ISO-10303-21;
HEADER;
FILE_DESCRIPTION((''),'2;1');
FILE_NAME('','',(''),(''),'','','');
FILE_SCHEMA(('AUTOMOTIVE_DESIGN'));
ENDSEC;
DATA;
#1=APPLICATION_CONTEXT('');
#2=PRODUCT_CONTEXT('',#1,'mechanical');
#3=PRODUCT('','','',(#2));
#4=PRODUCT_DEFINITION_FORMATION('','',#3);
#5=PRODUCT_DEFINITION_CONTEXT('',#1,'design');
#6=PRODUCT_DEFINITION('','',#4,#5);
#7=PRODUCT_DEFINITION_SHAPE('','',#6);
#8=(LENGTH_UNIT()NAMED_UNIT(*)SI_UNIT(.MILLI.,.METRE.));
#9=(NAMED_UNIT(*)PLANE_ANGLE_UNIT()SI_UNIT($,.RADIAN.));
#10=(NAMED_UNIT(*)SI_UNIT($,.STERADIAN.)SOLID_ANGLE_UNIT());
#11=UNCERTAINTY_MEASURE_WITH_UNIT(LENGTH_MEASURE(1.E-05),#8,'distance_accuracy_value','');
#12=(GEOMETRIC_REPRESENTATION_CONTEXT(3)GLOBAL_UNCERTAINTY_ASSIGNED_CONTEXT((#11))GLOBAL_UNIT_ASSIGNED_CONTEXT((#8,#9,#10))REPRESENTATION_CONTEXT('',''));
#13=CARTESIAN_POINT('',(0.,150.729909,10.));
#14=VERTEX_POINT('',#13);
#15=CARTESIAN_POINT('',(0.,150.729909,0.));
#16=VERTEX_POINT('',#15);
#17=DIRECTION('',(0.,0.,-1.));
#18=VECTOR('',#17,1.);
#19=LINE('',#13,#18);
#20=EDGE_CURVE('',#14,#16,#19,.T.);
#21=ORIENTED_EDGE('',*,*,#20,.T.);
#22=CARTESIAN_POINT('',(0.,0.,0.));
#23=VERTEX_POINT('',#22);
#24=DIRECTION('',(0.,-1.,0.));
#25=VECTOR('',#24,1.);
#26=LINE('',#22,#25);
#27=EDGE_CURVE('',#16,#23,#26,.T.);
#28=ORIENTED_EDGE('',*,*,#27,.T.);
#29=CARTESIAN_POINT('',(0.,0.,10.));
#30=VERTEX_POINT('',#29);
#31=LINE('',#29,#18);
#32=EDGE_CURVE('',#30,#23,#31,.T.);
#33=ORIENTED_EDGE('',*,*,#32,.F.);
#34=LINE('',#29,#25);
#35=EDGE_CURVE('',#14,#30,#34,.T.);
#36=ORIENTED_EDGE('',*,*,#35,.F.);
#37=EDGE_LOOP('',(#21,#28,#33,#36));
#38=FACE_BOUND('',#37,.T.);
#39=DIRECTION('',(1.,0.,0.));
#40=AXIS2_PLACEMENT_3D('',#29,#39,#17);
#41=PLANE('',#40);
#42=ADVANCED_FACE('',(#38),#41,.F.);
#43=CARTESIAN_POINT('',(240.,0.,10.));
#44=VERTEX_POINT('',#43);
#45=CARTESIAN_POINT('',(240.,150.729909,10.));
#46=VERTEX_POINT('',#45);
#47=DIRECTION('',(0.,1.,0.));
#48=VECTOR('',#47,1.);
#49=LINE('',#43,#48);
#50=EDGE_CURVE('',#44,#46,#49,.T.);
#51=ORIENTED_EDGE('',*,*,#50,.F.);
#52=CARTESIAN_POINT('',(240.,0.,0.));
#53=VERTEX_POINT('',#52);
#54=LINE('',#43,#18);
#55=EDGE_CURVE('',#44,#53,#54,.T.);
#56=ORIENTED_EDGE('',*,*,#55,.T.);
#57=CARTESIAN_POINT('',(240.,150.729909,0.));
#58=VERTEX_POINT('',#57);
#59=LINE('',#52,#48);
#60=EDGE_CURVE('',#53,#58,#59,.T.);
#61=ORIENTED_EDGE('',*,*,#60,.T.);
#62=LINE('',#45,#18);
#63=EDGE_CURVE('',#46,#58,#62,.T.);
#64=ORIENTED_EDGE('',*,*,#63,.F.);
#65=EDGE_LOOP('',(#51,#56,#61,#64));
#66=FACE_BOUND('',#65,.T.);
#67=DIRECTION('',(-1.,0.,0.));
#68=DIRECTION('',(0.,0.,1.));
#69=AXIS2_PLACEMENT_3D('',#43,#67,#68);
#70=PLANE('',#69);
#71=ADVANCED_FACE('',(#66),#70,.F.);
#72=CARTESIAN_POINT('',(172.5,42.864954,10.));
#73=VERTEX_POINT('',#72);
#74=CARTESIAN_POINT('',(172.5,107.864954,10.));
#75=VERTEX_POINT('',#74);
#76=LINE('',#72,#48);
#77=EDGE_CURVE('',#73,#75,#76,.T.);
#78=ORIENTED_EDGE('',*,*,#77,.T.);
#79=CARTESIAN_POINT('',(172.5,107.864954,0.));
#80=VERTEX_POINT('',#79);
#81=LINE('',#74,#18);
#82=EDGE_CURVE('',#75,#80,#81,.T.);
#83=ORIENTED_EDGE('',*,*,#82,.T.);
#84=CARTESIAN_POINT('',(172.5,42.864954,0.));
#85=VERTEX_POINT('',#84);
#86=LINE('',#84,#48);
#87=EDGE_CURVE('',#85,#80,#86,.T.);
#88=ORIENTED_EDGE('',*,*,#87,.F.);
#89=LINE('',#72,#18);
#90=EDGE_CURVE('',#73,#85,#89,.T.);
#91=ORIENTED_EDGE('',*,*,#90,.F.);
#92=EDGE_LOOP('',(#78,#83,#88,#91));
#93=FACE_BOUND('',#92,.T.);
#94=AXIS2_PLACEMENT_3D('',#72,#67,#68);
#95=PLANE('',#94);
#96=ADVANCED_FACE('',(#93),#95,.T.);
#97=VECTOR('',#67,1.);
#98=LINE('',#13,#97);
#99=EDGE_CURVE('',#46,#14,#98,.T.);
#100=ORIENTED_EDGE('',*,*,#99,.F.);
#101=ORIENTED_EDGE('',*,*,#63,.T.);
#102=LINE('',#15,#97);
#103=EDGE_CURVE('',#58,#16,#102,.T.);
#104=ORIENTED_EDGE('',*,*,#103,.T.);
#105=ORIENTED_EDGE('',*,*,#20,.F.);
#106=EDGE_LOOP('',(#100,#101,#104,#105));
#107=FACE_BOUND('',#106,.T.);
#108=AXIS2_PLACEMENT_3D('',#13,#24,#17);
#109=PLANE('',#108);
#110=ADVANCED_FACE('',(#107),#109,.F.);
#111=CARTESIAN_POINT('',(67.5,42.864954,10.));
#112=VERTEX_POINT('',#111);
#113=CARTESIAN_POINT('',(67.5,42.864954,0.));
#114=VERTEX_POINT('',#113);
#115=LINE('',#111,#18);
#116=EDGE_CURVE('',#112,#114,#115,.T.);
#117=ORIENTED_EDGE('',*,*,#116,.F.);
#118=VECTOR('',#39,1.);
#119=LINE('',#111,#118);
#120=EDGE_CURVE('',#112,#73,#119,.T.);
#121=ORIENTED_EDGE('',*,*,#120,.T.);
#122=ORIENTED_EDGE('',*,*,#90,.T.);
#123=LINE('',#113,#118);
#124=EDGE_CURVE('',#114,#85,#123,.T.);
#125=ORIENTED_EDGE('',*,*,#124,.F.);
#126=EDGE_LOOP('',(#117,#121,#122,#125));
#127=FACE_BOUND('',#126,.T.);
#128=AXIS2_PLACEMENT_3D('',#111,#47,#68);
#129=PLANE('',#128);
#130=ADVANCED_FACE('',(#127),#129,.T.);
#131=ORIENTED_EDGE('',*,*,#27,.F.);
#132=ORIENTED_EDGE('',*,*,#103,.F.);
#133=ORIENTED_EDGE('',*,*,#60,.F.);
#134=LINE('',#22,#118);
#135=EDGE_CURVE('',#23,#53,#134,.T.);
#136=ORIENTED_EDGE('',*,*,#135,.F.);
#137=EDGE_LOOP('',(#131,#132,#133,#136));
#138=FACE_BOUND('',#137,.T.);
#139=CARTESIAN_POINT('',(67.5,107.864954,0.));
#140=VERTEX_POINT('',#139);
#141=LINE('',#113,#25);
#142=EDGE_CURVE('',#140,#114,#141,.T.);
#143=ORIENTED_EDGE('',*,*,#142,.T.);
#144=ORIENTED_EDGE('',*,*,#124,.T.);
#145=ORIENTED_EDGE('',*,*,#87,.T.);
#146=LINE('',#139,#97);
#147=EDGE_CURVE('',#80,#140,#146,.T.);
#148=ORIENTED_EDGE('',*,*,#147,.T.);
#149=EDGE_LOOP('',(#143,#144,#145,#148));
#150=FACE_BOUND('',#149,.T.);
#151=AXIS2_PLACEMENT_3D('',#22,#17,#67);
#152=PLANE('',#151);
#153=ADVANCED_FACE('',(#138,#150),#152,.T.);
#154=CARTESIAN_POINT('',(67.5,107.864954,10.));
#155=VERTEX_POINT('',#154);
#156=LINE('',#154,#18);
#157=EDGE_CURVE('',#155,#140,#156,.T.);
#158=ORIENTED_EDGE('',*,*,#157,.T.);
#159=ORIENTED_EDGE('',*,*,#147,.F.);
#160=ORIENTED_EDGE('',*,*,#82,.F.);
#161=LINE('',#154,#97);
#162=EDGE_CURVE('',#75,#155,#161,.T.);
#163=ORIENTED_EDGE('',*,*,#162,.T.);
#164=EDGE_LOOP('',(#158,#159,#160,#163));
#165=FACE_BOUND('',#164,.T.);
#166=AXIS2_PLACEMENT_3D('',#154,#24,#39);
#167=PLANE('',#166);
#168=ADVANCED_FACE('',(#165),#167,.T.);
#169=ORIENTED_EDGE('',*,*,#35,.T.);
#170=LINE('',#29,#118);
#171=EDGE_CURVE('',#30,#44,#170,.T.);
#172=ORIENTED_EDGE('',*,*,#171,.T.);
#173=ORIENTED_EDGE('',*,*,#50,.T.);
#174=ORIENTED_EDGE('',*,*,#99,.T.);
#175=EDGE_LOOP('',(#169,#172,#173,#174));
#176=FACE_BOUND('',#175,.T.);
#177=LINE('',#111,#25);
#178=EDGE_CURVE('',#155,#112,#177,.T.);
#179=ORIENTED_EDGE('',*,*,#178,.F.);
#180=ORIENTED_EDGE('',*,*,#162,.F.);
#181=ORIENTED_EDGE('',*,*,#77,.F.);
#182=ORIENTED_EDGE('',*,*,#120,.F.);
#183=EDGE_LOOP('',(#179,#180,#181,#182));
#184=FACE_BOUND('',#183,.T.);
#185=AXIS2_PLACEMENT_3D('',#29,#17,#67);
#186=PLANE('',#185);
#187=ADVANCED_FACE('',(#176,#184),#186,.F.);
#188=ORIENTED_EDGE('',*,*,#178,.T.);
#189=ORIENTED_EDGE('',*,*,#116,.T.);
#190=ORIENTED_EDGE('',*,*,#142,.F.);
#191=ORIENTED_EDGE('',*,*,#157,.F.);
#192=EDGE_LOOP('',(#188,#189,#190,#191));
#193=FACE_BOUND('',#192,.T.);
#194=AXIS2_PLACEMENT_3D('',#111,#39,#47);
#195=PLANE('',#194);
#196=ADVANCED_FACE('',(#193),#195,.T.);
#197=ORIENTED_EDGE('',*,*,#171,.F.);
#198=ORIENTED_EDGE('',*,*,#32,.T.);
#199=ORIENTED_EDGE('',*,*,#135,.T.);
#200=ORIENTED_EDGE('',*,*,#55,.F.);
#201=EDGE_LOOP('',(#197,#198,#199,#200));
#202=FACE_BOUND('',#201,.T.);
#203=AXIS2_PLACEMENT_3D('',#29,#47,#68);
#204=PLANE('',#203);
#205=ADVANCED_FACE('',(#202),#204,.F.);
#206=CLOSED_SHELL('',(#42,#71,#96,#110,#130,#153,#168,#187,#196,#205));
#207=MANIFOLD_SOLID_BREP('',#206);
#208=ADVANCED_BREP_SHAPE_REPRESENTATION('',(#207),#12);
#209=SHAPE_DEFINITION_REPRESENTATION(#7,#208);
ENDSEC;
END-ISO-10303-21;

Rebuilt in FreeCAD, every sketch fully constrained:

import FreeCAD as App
import Part
import Sketcher

V = App.Vector


def add_polygon(sketch, points):
    """Adds a closed chain of lines whose ends are joined by coincident constraints."""
    first, n = sketch.GeometryCount, len(points)
    for a, b in zip(points, points[1:] + points[:1]):
        sketch.addGeometry(Part.LineSegment(App.Vector(*a, 0), App.Vector(*b, 0)), False)
    for i in range(n):
        sketch.addConstraint(Sketcher.Constraint("Coincident", first + i, 2, first + (i + 1) % n, 1))

doc = App.newDocument("Part")
body = doc.addObject("PartDesign::Body", "Body")

# Sketch on XY plane
sketch1 = body.newObject("Sketcher::SketchObject", "Sketch")
sketch1.AttachmentSupport = (doc.getObject("XY_Plane"), [""])
sketch1.MapMode = "FlatFace"
add_polygon(sketch1, [(0, 151), (0, 0), (240, 0), (240, 151)])  # lines 0-3
add_polygon(sketch1, [(172, 43), (68, 43), (68, 108), (172, 108)])  # lines 4-7
sketch1.addConstraint(Sketcher.Constraint("Vertical", 0))
sketch1.addConstraint(Sketcher.Constraint("Horizontal", 1))
sketch1.addConstraint(Sketcher.Constraint("Vertical", 2))
sketch1.addConstraint(Sketcher.Constraint("Horizontal", 3))
sketch1.addConstraint(Sketcher.Constraint("Horizontal", 4))
sketch1.addConstraint(Sketcher.Constraint("Vertical", 5))
sketch1.addConstraint(Sketcher.Constraint("Horizontal", 6))
sketch1.addConstraint(Sketcher.Constraint("Vertical", 7))
sketch1.addConstraint(Sketcher.Constraint("Coincident", 0, 2, -1, 1))
sketch1.addConstraint(Sketcher.Constraint("DistanceX", 1, 1, 1, 2, 240.0))
sketch1.addConstraint(Sketcher.Constraint("DistanceX", 4, 2, 4, 1, 105.0))
sketch1.addConstraint(Sketcher.Constraint("DistanceY", 5, 1, 5, 2, 65.0))
sketch1.addConstraint(Sketcher.Constraint("DistanceX", -1, 1, 4, 2, 67.5))
sketch1.addConstraint(Sketcher.Constraint("DistanceY", 0, 2, 0, 1, 150.729909))
sketch1.addConstraint(Sketcher.Constraint("DistanceY", -1, 1, 4, 2, 42.864955))
pad1 = body.newObject("PartDesign::Pad", "Pad")
pad1.Profile = sketch1
pad1.Length = 10

doc.recompute()
